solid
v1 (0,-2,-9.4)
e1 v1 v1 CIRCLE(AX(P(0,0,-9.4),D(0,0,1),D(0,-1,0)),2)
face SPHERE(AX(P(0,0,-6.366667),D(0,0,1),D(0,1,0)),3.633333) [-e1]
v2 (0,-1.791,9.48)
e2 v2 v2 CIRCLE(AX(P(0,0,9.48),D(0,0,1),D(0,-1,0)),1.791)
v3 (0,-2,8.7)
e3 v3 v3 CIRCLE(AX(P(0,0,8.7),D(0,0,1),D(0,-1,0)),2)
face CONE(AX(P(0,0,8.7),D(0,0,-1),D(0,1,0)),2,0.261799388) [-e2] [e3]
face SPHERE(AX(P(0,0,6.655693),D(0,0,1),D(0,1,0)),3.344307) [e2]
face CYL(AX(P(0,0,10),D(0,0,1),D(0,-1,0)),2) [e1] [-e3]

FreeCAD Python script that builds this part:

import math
import FreeCAD as App
import Part
import Sketcher

V = App.Vector
Q = App.Units.Quantity

doc = App.newDocument("Part")
params = doc.addObject("Spreadsheet::Sheet", "Params")
for row, (alias, value) in enumerate([
    ("sketch1_height", "20 mm"),
    ("sketch1_height2", "18.1 mm"),
    ("revolution_angle", "360 deg"),
], start=1):
    params.set(f"A{row}", alias)
    params.set(f"B{row}", "=" + value)
    params.setAlias(f"B{row}", alias)

body = doc.addObject("PartDesign::Body", "Body")

# Sketch on YZ plane
sketch1 = body.newObject("Sketcher::SketchObject", "Sketch")
sketch1.AttachmentSupport = (doc.getObject("YZ_Plane"), [""])
sketch1.MapMode = "FlatFace"
sketch1.addGeometry([
    Part.LineSegment(V(0, 10, 0), V(0, -10, 0)),  # 0
    Part.ArcOfCircle(Part.Circle(V(0, -6.4, 0), V(0, 0, 1), 3.6), math.radians(-90), math.radians(-57)),  # 1
    Part.LineSegment(V(2, -9.4, 0), V(2, 8.7, 0)),  # 2
    Part.LineSegment(V(2, 8.7, 0), V(1.8, 9.5, 0)),  # 3
    Part.ArcOfCircle(Part.Circle(V(0, 6.7, 0), V(0, 0, 1), 3.3), math.radians(58), math.radians(90)),  # 4
], False)
sketch1.addConstraint([
    Sketcher.Constraint("Coincident", 0, 2, 1, 1),
    Sketcher.Constraint("Coincident", 1, 2, 2, 1),
    Sketcher.Constraint("Coincident", 2, 2, 3, 1),
    Sketcher.Constraint("Coincident", 3, 2, 4, 1),
    Sketcher.Constraint("Coincident", 4, 2, 0, 1),
    Sketcher.Constraint("Vertical", 0),
    Sketcher.Constraint("Vertical", 2),
    Sketcher.Constraint("Symmetric", 0, 2, 4, 2, -1, 1),
    Sketcher.Constraint("PointOnObject", 1, 3, -2),
    Sketcher.Constraint("PointOnObject", 4, 3, -2),
    Sketcher.Constraint("DistanceY", 0, 2, 0, 1, 20.0),
    Sketcher.Constraint("Angle", 3, Q("105 deg")),
    Sketcher.Constraint("DistanceY", 2, 1, 2, 2, 18.1),
    Sketcher.Constraint("DistanceX", -1, 1, 1, 2, 2.0),
    Sketcher.Constraint("DistanceY", 1, 2, -1, 1, 9.4),
    Sketcher.Constraint("DistanceY", -1, 1, 3, 2, 9.48),
])
sketch1.setExpression("Constraints[10]", "Params.sketch1_height")
sketch1.setExpression("Constraints[12]", "Params.sketch1_height2")
revolution = body.newObject("PartDesign::Revolution", "Revolution")
revolution.Profile = sketch1
revolution.ReferenceAxis = (sketch1, ["V_Axis"])
revolution.setExpression("Angle", "Params.revolution_angle")

doc.recompute()
